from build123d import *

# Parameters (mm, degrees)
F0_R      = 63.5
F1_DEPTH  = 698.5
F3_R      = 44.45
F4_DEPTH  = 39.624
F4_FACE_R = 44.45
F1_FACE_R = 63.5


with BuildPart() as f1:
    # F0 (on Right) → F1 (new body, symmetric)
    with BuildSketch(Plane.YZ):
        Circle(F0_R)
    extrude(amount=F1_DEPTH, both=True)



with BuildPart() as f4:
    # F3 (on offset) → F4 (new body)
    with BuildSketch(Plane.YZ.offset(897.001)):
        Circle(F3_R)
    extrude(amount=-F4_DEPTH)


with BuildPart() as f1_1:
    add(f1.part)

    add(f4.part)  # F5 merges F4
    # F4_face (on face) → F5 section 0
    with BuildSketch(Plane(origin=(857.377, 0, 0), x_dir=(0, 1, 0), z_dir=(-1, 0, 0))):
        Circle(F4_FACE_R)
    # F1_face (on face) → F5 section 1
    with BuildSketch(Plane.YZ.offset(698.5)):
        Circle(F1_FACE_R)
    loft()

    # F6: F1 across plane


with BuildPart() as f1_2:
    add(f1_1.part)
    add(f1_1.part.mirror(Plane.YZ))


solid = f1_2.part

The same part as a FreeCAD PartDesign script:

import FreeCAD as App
import Part
import Sketcher
Q = App.Units.Quantity

doc = App.newDocument("Part")
body = doc.addObject("PartDesign::Body", "Body")

# Sketch on YZ plane
sketch1 = body.newObject("Sketcher::SketchObject", "Sketch")
sketch1.AttachmentSupport = (doc.getObject("YZ_Plane"), [""])
sketch1.MapMode = "FlatFace"
sketch1.addGeometry(Part.Circle(App.Vector(0, 0, 0), App.Vector(0, 0, 1), 64), False)
sketch1.addConstraint([
    Sketcher.Constraint("Coincident", 0, 3, -1, 1),
    Sketcher.Constraint("Diameter", 0, Q("5 in")),
])
pad1 = body.newObject("PartDesign::Pad", "Pad")
pad1.Profile = sketch1
pad1.Length = Q("55 in")
pad1.Midplane = True
body2 = doc.addObject("PartDesign::Body", "Body001")

# Sketch on YZ plane
sketch2 = body2.newObject("Sketcher::SketchObject", "Sketch001")
sketch2.AttachmentSupport = (doc.getObject("YZ_Plane001"), [""])
sketch2.MapMode = "FlatFace"
sketch2.AttachmentOffset = App.Placement(App.Vector(0, 0, 35.315 * 25.4), App.Rotation())
sketch2.addGeometry(Part.Circle(App.Vector(0, 0, 0), App.Vector(0, 0, 1), 44), False)
sketch2.addConstraint([
    Sketcher.Constraint("Coincident", 0, 3, -1, 1),
    Sketcher.Constraint("Diameter", 0, Q("3.5 in")),
])
pad2 = body2.newObject("PartDesign::Pad", "Pad001")
pad2.Profile = sketch2
pad2.Length = Q("1.56 in")
pad2.Reversed = True
body.AllowCompound = True
doc.recompute()

boolean = body.newObject("PartDesign::Boolean", "Boolean")
boolean.Type = "Fuse"
boolean.addObjects([body2])

# Sketch on YZ plane
sketch3 = body.newObject("Sketcher::SketchObject", "Sketch002")
sketch3.AttachmentSupport = (doc.getObject("YZ_Plane"), [""])
sketch3.MapMode = "FlatFace"
sketch3.AttachmentOffset = App.Placement(App.Vector(0, 0, 33.755 * 25.4), App.Rotation())
sketch3.addGeometry(Part.Circle(App.Vector(0, 0, 0), App.Vector(0, 0, 1), 44), False)
sketch3.addConstraint([
    Sketcher.Constraint("Coincident", 0, 3, -1, 1),
    Sketcher.Constraint("Diameter", 0, Q("3.5 in")),
])

# Sketch on YZ plane
sketch4 = body.newObject("Sketcher::SketchObject", "Sketch003")
sketch4.AttachmentSupport = (doc.getObject("YZ_Plane"), [""])
sketch4.MapMode = "FlatFace"
sketch4.AttachmentOffset = App.Placement(App.Vector(0, 0, 27.5 * 25.4), App.Rotation())
sketch4.addGeometry(Part.Circle(App.Vector(0, 0, 0), App.Vector(0, 0, 1), 64), False)
sketch4.addConstraint([
    Sketcher.Constraint("Coincident", 0, 3, -1, 1),
    Sketcher.Constraint("Diameter", 0, Q("5 in")),
])

additiveloft = body.newObject("PartDesign::AdditiveLoft", "AdditiveLoft")
additiveloft.Profile = sketch3
additiveloft.Sections = [sketch4]
body3 = doc.addObject("PartDesign::Body", "Body002")
doc.recompute()

body3.BaseFeature = body
doc.recompute()

mirroring = doc.addObject("Part::Mirroring", "Mirroring")
mirroring.Source = body
mirroring.Base = App.Vector(0, 0, 0)
mirroring.Normal = App.Vector(1, 0, 0)
body4 = doc.addObject("PartDesign::Body", "Body003")
body4.BaseFeature = mirroring
boolean2 = body3.newObject("PartDesign::Boolean", "Boolean001")
boolean2.Type = "Fuse"
boolean2.addObjects([body4])
doc.recompute()
mirroring.Visibility = False

doc.recompute()
